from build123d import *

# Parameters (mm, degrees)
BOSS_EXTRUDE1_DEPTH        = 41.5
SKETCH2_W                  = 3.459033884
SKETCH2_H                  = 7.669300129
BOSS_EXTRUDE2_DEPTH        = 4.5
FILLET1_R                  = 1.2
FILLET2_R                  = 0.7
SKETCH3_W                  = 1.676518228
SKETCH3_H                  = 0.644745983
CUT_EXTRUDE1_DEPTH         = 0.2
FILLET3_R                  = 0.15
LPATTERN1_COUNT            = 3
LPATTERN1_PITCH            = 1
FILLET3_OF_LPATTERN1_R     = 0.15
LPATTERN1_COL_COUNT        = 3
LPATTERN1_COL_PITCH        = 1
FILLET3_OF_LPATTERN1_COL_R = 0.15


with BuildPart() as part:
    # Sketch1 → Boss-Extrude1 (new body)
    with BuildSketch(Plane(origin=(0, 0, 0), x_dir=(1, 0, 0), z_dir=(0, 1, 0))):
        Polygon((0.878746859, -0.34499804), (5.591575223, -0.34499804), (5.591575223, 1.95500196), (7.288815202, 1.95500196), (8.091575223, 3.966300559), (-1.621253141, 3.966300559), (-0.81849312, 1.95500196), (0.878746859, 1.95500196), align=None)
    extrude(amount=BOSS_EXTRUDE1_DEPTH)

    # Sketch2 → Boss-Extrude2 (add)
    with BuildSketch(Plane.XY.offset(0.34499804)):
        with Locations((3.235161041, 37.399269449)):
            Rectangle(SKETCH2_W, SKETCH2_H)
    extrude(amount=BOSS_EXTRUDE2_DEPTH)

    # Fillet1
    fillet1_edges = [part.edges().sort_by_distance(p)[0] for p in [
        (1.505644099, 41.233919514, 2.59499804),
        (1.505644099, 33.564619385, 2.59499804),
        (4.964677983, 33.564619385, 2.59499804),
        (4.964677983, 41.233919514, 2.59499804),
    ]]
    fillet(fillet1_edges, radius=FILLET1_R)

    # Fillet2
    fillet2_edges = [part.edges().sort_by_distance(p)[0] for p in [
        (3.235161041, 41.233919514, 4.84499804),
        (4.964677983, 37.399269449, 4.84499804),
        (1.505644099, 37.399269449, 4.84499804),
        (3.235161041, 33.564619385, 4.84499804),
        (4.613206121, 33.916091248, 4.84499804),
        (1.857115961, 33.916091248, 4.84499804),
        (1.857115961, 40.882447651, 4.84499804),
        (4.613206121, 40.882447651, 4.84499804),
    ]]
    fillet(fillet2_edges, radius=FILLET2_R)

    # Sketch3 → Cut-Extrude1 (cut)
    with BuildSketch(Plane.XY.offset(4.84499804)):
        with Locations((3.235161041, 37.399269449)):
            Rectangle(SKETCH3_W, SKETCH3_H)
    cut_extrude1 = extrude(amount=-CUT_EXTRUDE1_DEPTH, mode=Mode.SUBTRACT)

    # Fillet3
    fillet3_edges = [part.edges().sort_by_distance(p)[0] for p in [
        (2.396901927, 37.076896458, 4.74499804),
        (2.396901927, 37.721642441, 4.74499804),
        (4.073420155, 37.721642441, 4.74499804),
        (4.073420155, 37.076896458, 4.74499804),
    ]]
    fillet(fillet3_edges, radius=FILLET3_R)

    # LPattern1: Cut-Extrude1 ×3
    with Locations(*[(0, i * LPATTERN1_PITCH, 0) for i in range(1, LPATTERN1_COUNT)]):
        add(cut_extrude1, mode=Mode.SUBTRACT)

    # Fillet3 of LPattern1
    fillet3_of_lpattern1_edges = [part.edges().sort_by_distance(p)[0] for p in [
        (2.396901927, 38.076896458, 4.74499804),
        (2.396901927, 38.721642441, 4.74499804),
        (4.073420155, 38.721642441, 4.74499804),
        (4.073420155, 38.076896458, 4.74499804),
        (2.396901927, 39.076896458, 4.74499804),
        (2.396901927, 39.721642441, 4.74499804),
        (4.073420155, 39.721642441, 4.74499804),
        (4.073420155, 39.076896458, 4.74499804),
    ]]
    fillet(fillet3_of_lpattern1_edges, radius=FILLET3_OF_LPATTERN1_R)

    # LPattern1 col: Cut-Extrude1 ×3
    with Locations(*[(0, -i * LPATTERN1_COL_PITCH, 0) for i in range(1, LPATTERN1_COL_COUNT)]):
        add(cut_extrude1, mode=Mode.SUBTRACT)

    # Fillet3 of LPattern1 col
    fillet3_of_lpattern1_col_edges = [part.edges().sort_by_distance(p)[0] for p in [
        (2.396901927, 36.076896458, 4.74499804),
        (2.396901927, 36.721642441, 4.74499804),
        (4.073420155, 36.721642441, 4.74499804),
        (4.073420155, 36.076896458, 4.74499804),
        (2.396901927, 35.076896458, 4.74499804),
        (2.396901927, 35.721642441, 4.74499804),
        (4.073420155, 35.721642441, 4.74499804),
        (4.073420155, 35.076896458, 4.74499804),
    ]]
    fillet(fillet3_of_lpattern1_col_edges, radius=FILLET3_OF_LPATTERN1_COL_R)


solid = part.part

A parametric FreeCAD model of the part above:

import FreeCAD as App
import Part
import Sketcher
Q = App.Units.Quantity


def edges_at(feature, points):
    """Names of the edges that pass closest to the given points."""
    edges = feature.Shape.Edges
    near = lambda p: min(range(len(edges)), key=lambda i: edges[i].distToShape(Part.Vertex(*p))[0])
    return sorted({f"Edge{near(p) + 1}" for p in points})


def add_polygon(sketch, points):
    """Adds a closed chain of lines whose ends are joined by coincident constraints."""
    first, n = sketch.GeometryCount, len(points)
    for a, b in zip(points, points[1:] + points[:1]):
        sketch.addGeometry(Part.LineSegment(App.Vector(*a, 0), App.Vector(*b, 0)), False)
    for i in range(n):
        sketch.addConstraint(Sketcher.Constraint("Coincident", first + i, 2, first + (i + 1) % n, 1))

doc = App.newDocument("Part")
params = doc.addObject("Spreadsheet::Sheet", "Params")
for row, (alias, value) in enumerate([
    ("sketch1_height", "2.3 mm"),
    ("pad1_length", "41.5 mm"),
    ("pad2_length", "4.5 mm"),
    ("fillet_radius", "1.2 mm"),
    ("fillet2_radius", "0.7 mm"),
    ("pocket1_length", "0.2 mm"),
    ("fillet3_radius", "0.15 mm"),
    ("linearpattern_pitch", "1 mm"),
    ("fillet4_radius", "0.15 mm"),
    ("linearpattern2_pitch", "1 mm"),
    ("fillet5_radius", "0.15 mm"),
], start=1):
    params.set(f"A{row}", alias)
    params.set(f"B{row}", "=" + value)
    params.setAlias(f"B{row}", alias)

body = doc.addObject("PartDesign::Body", "Body")

# Sketch on XZ plane
sketch1 = body.newObject("Sketcher::SketchObject", "Sketch")
sketch1.AttachmentSupport = (doc.getObject("XZ_Plane"), [""])
sketch1.MapMode = "FlatFace"
add_polygon(sketch1, [(0.9, 0.3), (5.6, 0.3), (5.6, -2), (7.3, -2), (8.1, -4), (-1.6, -4), (-0.8, -2), (0.9, -2)])  # lines 0-7
sketch1.addConstraint([
    Sketcher.Constraint("Horizontal", 0),
    Sketcher.Constraint("Vertical", 1),
    Sketcher.Constraint("Horizontal", 2),
    Sketcher.Constraint("Horizontal", 4),
    Sketcher.Constraint("Horizontal", 6),
    Sketcher.Constraint("Vertical", 7),
    Sketcher.Constraint("Horizontal", 2, 2, 5, 2),
    Sketcher.Constraint("Equal", 2, 6),
    Sketcher.Constraint("Equal", 3, 5),
    Sketcher.Constraint("DistanceY", 1, 2, 1, 1, Q("2.3 mm")),
    Sketcher.Constraint("DistanceX", 1, 2, 3, 2, Q("2.5 mm")),
    Sketcher.Constraint("DistanceY", -1, 1, 0, 2, Q("0.344998 mm")),
    Sketcher.Constraint("DistanceX", 0, 1, 0, 2, Q("4.712828 mm")),
    Sketcher.Constraint("DistanceX", 2, 1, 2, 2, Q("1.69724 mm")),
    Sketcher.Constraint("DistanceY", 3, 2, -1, 1, Q("3.966301 mm")),
    Sketcher.Constraint("DistanceX", -1, 1, 0, 2, Q("5.591575 mm")),
])
sketch1.setExpression("Constraints[17]", "Params.sketch1_height")
pad1 = body.newObject("PartDesign::Pad", "Pad")
pad1.Profile = sketch1
pad1.setExpression("Length", "Params.pad1_length")
pad1.Reversed = True

# Sketch on XY plane
sketch2 = body.newObject("Sketcher::SketchObject", "Sketch001")
sketch2.AttachmentSupport = (doc.getObject("XY_Plane"), [""])
sketch2.MapMode = "FlatFace"
sketch2.AttachmentOffset = App.Placement(App.Vector(0, 0, 0.344998), App.Rotation())
add_polygon(sketch2, [(1.5, 41.2), (1.5, 33.6), (5, 33.6), (5, 41.2)])  # lines 0-3
sketch2.addConstraint([
    Sketcher.Constraint("Vertical", 0),
    Sketcher.Constraint("Horizontal", 1),
    Sketcher.Constraint("Vertical", 2),
    Sketcher.Constraint("Horizontal", 3),
    Sketcher.Constraint("DistanceY", 0, 2, 0, 1, Q("7.6693 mm")),
    Sketcher.Constraint("DistanceX", 1, 1, 1, 2, Q("3.459034 mm")),
    Sketcher.Constraint("DistanceY", -1, 1, 0, 2, Q("33.564619 mm")),
    Sketcher.Constraint("DistanceX", -1, 1, 0, 2, Q("1.505644 mm")),
])
pad2 = body.newObject("PartDesign::Pad", "Pad001")
pad2.Profile = sketch2
pad2.setExpression("Length", "Params.pad2_length")
doc.recompute()

fillet = body.newObject("PartDesign::Fillet", "Fillet")
fillet.Base = (pad2, edges_at(pad2, [
    (1.506, 41.234, 2.595),
    (1.506, 33.565, 2.595),
    (4.965, 33.565, 2.595),
    (4.965, 41.234, 2.595),
]))
fillet.setExpression("Radius", "Params.fillet_radius")
doc.recompute()

fillet2 = body.newObject("PartDesign::Fillet", "Fillet001")
fillet2.Base = (fillet, edges_at(fillet, [
    (3.235, 41.234, 4.845),
    (4.965, 37.399, 4.845),
    (1.506, 37.399, 4.845),
    (3.235, 33.565, 4.845),
    (4.613, 33.916, 4.845),
    (1.857, 33.916, 4.845),
    (1.857, 40.882, 4.845),
    (4.613, 40.882, 4.845),
]))
fillet2.setExpression("Radius", "Params.fillet2_radius")

# Sketch on XY plane
sketch3 = body.newObject("Sketcher::SketchObject", "Sketch002")
sketch3.AttachmentSupport = (doc.getObject("XY_Plane"), [""])
sketch3.MapMode = "FlatFace"
sketch3.AttachmentOffset = App.Placement(App.Vector(0, 0, 4.844998), App.Rotation())
add_polygon(sketch3, [(2.4, 37.7), (2.4, 37.1), (4.1, 37.1), (4.1, 37.7)])  # lines 0-3
sketch3.addConstraint([
    Sketcher.Constraint("Vertical", 0),
    Sketcher.Constraint("Horizontal", 1),
    Sketcher.Constraint("Vertical", 2),
    Sketcher.Constraint("Horizontal", 3),
    Sketcher.Constraint("DistanceX", 1, 1, 1, 2, Q("1.676518 mm")),
    Sketcher.Constraint("DistanceX", -1, 1, 0, 2, Q("2.396902 mm")),
    Sketcher.Constraint("DistanceY", 0, 2, 0, 1, Q("0.644746 mm")),
    Sketcher.Constraint("DistanceY", -1, 1, 0, 2, Q("37.076896 mm")),
])
pocket1 = body.newObject("PartDesign::Pocket", "Pocket")
pocket1.Profile = sketch3
pocket1.setExpression("Length", "Params.pocket1_length")
doc.recompute()

fillet3 = body.newObject("PartDesign::Fillet", "Fillet002")
fillet3.Base = (pocket1, edges_at(pocket1, [
    (2.397, 37.077, 4.745),
    (2.397, 37.722, 4.745),
    (4.073, 37.722, 4.745),
    (4.073, 37.077, 4.745),
]))
fillet3.setExpression("Radius", "Params.fillet3_radius")
doc.recompute()

linearpattern = body.newObject("PartDesign::LinearPattern", "LinearPattern")
linearpattern.Originals = [pocket1]
linearpattern.Direction = (doc.getObject("Y_Axis"), [""])
linearpattern.Mode = "offset"
linearpattern.setExpression("Offset", "Params.linearpattern_pitch")
linearpattern.Occurrences = 3
body.Tip = linearpattern
doc.recompute()

fillet4 = body.newObject("PartDesign::Fillet", "Fillet003")
fillet4.Base = (linearpattern, edges_at(linearpattern, [
    (2.397, 38.077, 4.745),
    (2.397, 38.722, 4.745),
    (4.073, 38.722, 4.745),
    (4.073, 38.077, 4.745),
    (2.397, 39.077, 4.745),
    (2.397, 39.722, 4.745),
    (4.073, 39.722, 4.745),
    (4.073, 39.077, 4.745),
]))
fillet4.setExpression("Radius", "Params.fillet4_radius")
doc.recompute()

linearpattern2 = body.newObject("PartDesign::LinearPattern", "LinearPattern001")
linearpattern2.Originals = [pocket1]
linearpattern2.Direction = (doc.getObject("Y_Axis"), [""])
linearpattern2.Mode = "offset"
linearpattern2.setExpression("Offset", "Params.linearpattern2_pitch")
linearpattern2.Occurrences = 3
linearpattern2.Reversed = True
body.Tip = linearpattern2
doc.recompute()

fillet5 = body.newObject("PartDesign::Fillet", "Fillet004")
fillet5.Base = (linearpattern2, edges_at(linearpattern2, [
    (2.397, 36.077, 4.745),
    (2.397, 36.722, 4.745),
    (4.073, 36.722, 4.745),
    (4.073, 36.077, 4.745),
    (2.397, 35.077, 4.745),
    (2.397, 35.722, 4.745),
    (4.073, 35.722, 4.745),
    (4.073, 35.077, 4.745),
]))
fillet5.setExpression("Radius", "Params.fillet5_radius")

doc.recompute()
